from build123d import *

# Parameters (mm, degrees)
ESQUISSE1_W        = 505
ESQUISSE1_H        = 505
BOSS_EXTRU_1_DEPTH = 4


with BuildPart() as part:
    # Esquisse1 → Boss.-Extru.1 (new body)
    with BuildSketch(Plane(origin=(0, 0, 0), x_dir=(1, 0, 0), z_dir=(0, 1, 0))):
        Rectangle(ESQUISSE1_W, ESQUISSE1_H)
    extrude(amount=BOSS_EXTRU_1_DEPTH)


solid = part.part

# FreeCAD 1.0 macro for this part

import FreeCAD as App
import Part
import Sketcher


def add_polygon(sketch, points):
    """Adds a closed chain of lines whose ends are joined by coincident constraints."""
    first, n = sketch.GeometryCount, len(points)
    for a, b in zip(points, points[1:] + points[:1]):
        sketch.addGeometry(Part.LineSegment(App.Vector(*a, 0), App.Vector(*b, 0)), False)
    for i in range(n):
        sketch.addConstraint(Sketcher.Constraint("Coincident", first + i, 2, first + (i + 1) % n, 1))

doc = App.newDocument("Part")
body = doc.addObject("PartDesign::Body", "Body")

sketch1 = body.newObject("Sketcher::SketchObject", "Sketch")
sketch1.AttachmentSupport = (doc.getObject("XZ_Plane"), [""])
sketch1.MapMode = "FlatFace"
add_polygon(sketch1, [(-252, -252), (-252, 252), (252, 252), (252, -252)])
sketch1.addConstraint(Sketcher.Constraint("Vertical", 0))
sketch1.addConstraint(Sketcher.Constraint("Horizontal", 1))
sketch1.addConstraint(Sketcher.Constraint("Vertical", 2))
sketch1.addConstraint(Sketcher.Constraint("Horizontal", 3))
sketch1.addConstraint(Sketcher.Constraint("Symmetric", 0, 2, 2, 2, -1, 1))
sketch1.addConstraint(Sketcher.Constraint("Equal", 3, 0))
sketch1.addConstraint(Sketcher.Constraint("DistanceX", 1, 1, 1, 2, 505.0))
pad1 = body.newObject("PartDesign::Pad", "Pad")
pad1.Profile = sketch1
pad1.Length = 4
pad1.Reversed = True

doc.recompute()
